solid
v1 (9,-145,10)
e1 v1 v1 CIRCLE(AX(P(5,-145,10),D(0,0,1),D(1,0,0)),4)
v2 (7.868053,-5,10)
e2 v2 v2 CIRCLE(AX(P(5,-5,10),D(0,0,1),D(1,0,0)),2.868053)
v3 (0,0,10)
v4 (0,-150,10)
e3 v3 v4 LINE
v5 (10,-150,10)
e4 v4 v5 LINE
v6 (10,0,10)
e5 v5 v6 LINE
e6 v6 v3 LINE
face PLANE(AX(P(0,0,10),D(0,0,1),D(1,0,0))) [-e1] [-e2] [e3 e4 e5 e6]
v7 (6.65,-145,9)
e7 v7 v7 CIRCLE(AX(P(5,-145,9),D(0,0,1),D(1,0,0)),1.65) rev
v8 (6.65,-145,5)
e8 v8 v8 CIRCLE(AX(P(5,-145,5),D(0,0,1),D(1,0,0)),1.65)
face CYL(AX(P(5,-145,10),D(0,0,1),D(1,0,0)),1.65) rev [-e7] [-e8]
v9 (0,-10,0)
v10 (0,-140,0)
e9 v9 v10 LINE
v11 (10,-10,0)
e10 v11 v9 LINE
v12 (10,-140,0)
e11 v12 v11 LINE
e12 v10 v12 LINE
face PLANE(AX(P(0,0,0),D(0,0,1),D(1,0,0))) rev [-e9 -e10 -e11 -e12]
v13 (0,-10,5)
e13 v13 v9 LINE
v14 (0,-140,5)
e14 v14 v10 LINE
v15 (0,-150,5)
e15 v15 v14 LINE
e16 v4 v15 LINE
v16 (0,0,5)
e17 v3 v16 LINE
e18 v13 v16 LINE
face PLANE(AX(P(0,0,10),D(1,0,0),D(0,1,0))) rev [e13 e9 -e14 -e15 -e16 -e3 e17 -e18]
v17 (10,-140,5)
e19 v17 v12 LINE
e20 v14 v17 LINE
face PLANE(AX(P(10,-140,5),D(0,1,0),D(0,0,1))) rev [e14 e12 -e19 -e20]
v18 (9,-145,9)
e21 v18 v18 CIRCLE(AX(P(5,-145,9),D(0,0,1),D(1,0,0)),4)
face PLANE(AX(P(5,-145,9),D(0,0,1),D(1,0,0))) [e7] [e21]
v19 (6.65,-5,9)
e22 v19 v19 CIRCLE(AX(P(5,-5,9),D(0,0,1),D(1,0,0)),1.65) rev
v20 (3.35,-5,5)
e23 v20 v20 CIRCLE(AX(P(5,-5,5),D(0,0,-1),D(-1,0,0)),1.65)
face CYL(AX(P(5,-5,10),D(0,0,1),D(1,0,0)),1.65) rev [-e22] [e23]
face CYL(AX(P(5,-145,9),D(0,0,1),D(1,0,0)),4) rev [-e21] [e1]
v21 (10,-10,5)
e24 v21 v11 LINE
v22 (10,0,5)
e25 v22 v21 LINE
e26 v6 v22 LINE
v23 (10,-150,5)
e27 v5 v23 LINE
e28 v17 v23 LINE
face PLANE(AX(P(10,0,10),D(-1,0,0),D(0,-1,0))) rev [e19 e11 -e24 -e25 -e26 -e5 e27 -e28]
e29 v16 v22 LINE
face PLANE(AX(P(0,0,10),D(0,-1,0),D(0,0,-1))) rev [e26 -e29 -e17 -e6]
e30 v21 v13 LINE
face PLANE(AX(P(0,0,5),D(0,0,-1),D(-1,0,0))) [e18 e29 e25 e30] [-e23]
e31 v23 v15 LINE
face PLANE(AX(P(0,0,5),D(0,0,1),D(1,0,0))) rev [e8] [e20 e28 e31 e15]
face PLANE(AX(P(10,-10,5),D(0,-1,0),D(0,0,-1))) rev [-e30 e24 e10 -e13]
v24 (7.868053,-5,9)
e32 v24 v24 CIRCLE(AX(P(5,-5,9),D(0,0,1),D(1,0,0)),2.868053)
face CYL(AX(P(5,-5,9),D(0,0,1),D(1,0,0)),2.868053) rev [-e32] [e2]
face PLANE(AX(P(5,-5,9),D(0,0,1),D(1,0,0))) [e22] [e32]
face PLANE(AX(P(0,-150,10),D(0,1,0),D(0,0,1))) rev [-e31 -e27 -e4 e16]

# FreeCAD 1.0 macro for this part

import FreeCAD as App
import Part
import Sketcher

V = App.Vector
Q = App.Units.Quantity

doc = App.newDocument("Part")
body = doc.addObject("PartDesign::Body", "Body")

sketch1 = body.newObject("Sketcher::SketchObject", "Sketch")
sketch1.AttachmentSupport = (doc.getObject("XY_Plane"), [""])
sketch1.MapMode = "FlatFace"
sketch1.addGeometry(Part.LineSegment(V(0, 0, 0), V(0, -150, 0)), False)
sketch1.addGeometry(Part.LineSegment(V(0, -150, 0), V(10, -150, 0)), False)
sketch1.addGeometry(Part.LineSegment(V(10, -150, 0), V(10, 0, 0)), False)
sketch1.addGeometry(Part.LineSegment(V(10, 0, 0), V(0, 0, 0)), False)
sketch1.addConstraint(Sketcher.Constraint("Coincident", 0, 2, 1, 1))
sketch1.addConstraint(Sketcher.Constraint("Coincident", 1, 2, 2, 1))
sketch1.addConstraint(Sketcher.Constraint("Coincident", 2, 2, 3, 1))
sketch1.addConstraint(Sketcher.Constraint("Coincident", 3, 2, 0, 1))
sketch1.addConstraint(Sketcher.Constraint("Vertical", 0))
sketch1.addConstraint(Sketcher.Constraint("Horizontal", 1))
sketch1.addConstraint(Sketcher.Constraint("Vertical", 2))
sketch1.addConstraint(Sketcher.Constraint("Horizontal", 3))
sketch1.addConstraint(Sketcher.Constraint("Coincident", 3, 2, -1, 1))
sketch1.addConstraint(Sketcher.Constraint("DistanceX", 1, 1, 1, 2, Q("10 mm")))
sketch1.addConstraint(Sketcher.Constraint("DistanceY", 0, 2, 0, 1, Q("150 mm")))
pad1 = body.newObject("PartDesign::Pad", "Pad")
pad1.Profile = sketch1
pad1.Length = 10

sketch2 = body.newObject("Sketcher::SketchObject", "Sketch001")
sketch2.AttachmentSupport = (doc.getObject("XY_Plane"), [""])
sketch2.MapMode = "FlatFace"
sketch2.addGeometry(Part.LineSegment(V(10, 0, 0), V(10, -10, 0)), False)
sketch2.addGeometry(Part.LineSegment(V(10, -10, 0), V(0, -10, 0)), False)
sketch2.addGeometry(Part.LineSegment(V(0, -10, 0), V(0, 0, 0)), False)
sketch2.addGeometry(Part.LineSegment(V(0, 0, 0), V(10, 0, 0)), False)
sketch2.addGeometry(Part.LineSegment(V(10, -140, 0), V(10, -150, 0)), False)
sketch2.addGeometry(Part.LineSegment(V(10, -150, 0), V(0, -150, 0)), False)
sketch2.addGeometry(Part.LineSegment(V(0, -150, 0), V(0, -140, 0)), False)
sketch2.addGeometry(Part.LineSegment(V(0, -140, 0), V(10, -140, 0)), False)
sketch2.addConstraint(Sketcher.Constraint("Coincident", 0, 2, 1, 1))
sketch2.addConstraint(Sketcher.Constraint("Coincident", 1, 2, 2, 1))
sketch2.addConstraint(Sketcher.Constraint("Coincident", 2, 2, 3, 1))
sketch2.addConstraint(Sketcher.Constraint("Coincident", 3, 2, 0, 1))
sketch2.addConstraint(Sketcher.Constraint("Coincident", 4, 2, 5, 1))
sketch2.addConstraint(Sketcher.Constraint("Coincident", 5, 2, 6, 1))
sketch2.addConstraint(Sketcher.Constraint("Coincident", 6, 2, 7, 1))
sketch2.addConstraint(Sketcher.Constraint("Coincident", 7, 2, 4, 1))
sketch2.addConstraint(Sketcher.Constraint("Vertical", 0))
sketch2.addConstraint(Sketcher.Constraint("Horizontal", 1))
sketch2.addConstraint(Sketcher.Constraint("Vertical", 2))
sketch2.addConstraint(Sketcher.Constraint("Horizontal", 3))
sketch2.addConstraint(Sketcher.Constraint("Vertical", 4))
sketch2.addConstraint(Sketcher.Constraint("Horizontal", 5))
sketch2.addConstraint(Sketcher.Constraint("Vertical", 6))
sketch2.addConstraint(Sketcher.Constraint("Horizontal", 7))
sketch2.addConstraint(Sketcher.Constraint("Coincident", 2, 2, -1, 1))
sketch2.addConstraint(Sketcher.Constraint("PointOnObject", 5, 2, -2))
sketch2.addConstraint(Sketcher.Constraint("Vertical", 3, 2, 4, 2))
sketch2.addConstraint(Sketcher.Constraint("Equal", 7, 0))
sketch2.addConstraint(Sketcher.Constraint("Equal", 2, 4))
sketch2.addConstraint(Sketcher.Constraint("DistanceX", 1, 2, 1, 1, Q("10 mm")))
sketch2.addConstraint(Sketcher.Constraint("DistanceY", 4, 2, -1, 1, Q("150 mm")))
pocket1 = body.newObject("PartDesign::Pocket", "Pocket")
pocket1.Profile = sketch2
pocket1.Length = 5
pocket1.Reversed = True

sketch3 = body.newObject("Sketcher::SketchObject", "Sketch002")
sketch3.AttachmentSupport = (doc.getObject("XY_Plane"), [""])
sketch3.MapMode = "FlatFace"
sketch3.AttachmentOffset = App.Placement(V(0, 0, 10), App.Rotation())
sketch3.addGeometry(Part.Circle(V(5, -5, 0), V(0, 0, 1), 1.6), False)
sketch3.addGeometry(Part.Circle(V(5, -145, 0), V(0, 0, 1), 1.6), False)
sketch3.addConstraint(Sketcher.Constraint("Equal", 0, 1))
sketch3.addConstraint(Sketcher.Constraint("Vertical", 0, 3, 1, 3))
sketch3.addConstraint(Sketcher.Constraint("Diameter", 0, Q("3.3 mm")))
sketch3.addConstraint(Sketcher.Constraint("DistanceX", -1, 1, 0, 3, Q("5 mm")))
sketch3.addConstraint(Sketcher.Constraint("DistanceY", 0, 3, -1, 1, Q("5 mm")))
sketch3.addConstraint(Sketcher.Constraint("DistanceY", 1, 3, -1, 1, Q("145 mm")))
doc.recompute()
hole = body.newObject("PartDesign::Hole", "Hole")
hole.Profile = sketch3
hole.ThreadType = "None"
hole.Diameter = 3.3
hole.DepthType = "ThroughAll"

sketch4 = body.newObject("Sketcher::SketchObject", "Sketch003")
sketch4.AttachmentSupport = (doc.getObject("XY_Plane"), [""])
sketch4.MapMode = "FlatFace"
sketch4.AttachmentOffset = App.Placement(V(0, 0, 10), App.Rotation())
sketch4.addGeometry(Part.Circle(V(5, -5, 0), V(0, 0, 1), 2.9), False)
sketch4.addGeometry(Part.Circle(V(5, -145, 0), V(0, 0, 1), 4), False)
sketch4.addConstraint(Sketcher.Constraint("Vertical", 0, 3, 1, 3))
sketch4.addConstraint(Sketcher.Constraint("Diameter", 1, Q("8 mm")))
sketch4.addConstraint(Sketcher.Constraint("DistanceX", -1, 1, 0, 3, Q("5 mm")))
sketch4.addConstraint(Sketcher.Constraint("DistanceY", 0, 3, -1, 1, Q("5 mm")))
sketch4.addConstraint(Sketcher.Constraint("DistanceY", 1, 3, -1, 1, Q("145 mm")))
sketch4.addConstraint(Sketcher.Constraint("Diameter", 0, Q("5.736106 mm")))
pocket2 = body.newObject("PartDesign::Pocket", "Pocket001")
pocket2.Profile = sketch4
pocket2.Length = 1

doc.recompute()
